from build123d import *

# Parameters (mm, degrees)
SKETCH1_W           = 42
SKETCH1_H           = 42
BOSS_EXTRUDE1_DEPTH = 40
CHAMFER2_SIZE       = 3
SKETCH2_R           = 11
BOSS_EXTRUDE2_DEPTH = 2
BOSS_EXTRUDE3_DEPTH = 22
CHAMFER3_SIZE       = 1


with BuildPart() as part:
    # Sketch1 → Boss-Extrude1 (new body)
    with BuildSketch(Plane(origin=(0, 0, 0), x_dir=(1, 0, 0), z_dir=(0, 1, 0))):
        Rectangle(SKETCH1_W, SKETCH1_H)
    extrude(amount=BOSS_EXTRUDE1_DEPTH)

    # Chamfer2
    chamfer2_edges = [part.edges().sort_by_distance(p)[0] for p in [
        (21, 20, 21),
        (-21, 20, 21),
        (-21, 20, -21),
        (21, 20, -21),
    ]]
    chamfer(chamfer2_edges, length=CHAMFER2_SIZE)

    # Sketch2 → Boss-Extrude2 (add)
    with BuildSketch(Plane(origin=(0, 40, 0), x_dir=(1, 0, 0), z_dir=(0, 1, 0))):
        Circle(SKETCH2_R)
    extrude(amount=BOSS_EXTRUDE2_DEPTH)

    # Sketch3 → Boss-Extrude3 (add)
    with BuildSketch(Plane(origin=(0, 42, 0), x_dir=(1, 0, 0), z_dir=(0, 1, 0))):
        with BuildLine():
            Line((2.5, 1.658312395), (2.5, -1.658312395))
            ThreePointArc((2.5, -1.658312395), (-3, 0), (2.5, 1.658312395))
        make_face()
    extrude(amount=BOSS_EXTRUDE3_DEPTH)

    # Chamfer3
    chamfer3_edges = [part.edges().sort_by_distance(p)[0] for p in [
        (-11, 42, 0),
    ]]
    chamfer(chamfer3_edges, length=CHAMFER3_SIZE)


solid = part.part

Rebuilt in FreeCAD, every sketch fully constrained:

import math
import FreeCAD as App
import Part
import Sketcher
Q = App.Units.Quantity


def edges_at(feature, points):
    """Names of the edges that pass closest to the given points."""
    edges = feature.Shape.Edges
    near = lambda p: min(range(len(edges)), key=lambda i: edges[i].distToShape(Part.Vertex(*p))[0])
    return sorted({f"Edge{near(p) + 1}" for p in points})


def add_polygon(sketch, points):
    """Adds a closed chain of lines whose ends are joined by coincident constraints."""
    first, n = sketch.GeometryCount, len(points)
    for a, b in zip(points, points[1:] + points[:1]):
        sketch.addGeometry(Part.LineSegment(App.Vector(*a, 0), App.Vector(*b, 0)), False)
    for i in range(n):
        sketch.addConstraint(Sketcher.Constraint("Coincident", first + i, 2, first + (i + 1) % n, 1))

doc = App.newDocument("Part")
body = doc.addObject("PartDesign::Body", "Body")

# Sketch on XZ plane
sketch1 = body.newObject("Sketcher::SketchObject", "Sketch")
sketch1.AttachmentSupport = (doc.getObject("XZ_Plane"), [""])
sketch1.MapMode = "FlatFace"
add_polygon(sketch1, [(-21, -21), (-21, 21), (21, 21), (21, -21)])  # lines 0-3
sketch1.addConstraint([
    Sketcher.Constraint("Vertical", 0),
    Sketcher.Constraint("Horizontal", 1),
    Sketcher.Constraint("Vertical", 2),
    Sketcher.Constraint("Horizontal", 3),
    Sketcher.Constraint("Symmetric", 0, 2, 2, 2, -1, 1),
    Sketcher.Constraint("Equal", 3, 0),
    Sketcher.Constraint("DistanceX", 1, 1, 1, 2, Q("42 mm")),
])
pad1 = body.newObject("PartDesign::Pad", "Pad")
pad1.Profile = sketch1
pad1.Length = 40
pad1.Reversed = True
doc.recompute()

chamfer = body.newObject("PartDesign::Chamfer", "Chamfer")
chamfer.Base = (pad1, edges_at(pad1, [
    (21, 20, 21),
    (-21, 20, 21),
    (-21, 20, -21),
    (21, 20, -21),
]))
chamfer.Size = 3

# Sketch on XZ plane
sketch2 = body.newObject("Sketcher::SketchObject", "Sketch001")
sketch2.AttachmentSupport = (doc.getObject("XZ_Plane"), [""])
sketch2.MapMode = "FlatFace"
sketch2.AttachmentOffset = App.Placement(App.Vector(0, 0, -40), App.Rotation())
sketch2.addGeometry(Part.Circle(App.Vector(0, 0, 0), App.Vector(0, 0, 1), 11), False)
sketch2.addConstraint([
    Sketcher.Constraint("Coincident", 0, 3, -1, 1),
    Sketcher.Constraint("Diameter", 0, Q("22 mm")),
])
pad2 = body.newObject("PartDesign::Pad", "Pad001")
pad2.Profile = sketch2
pad2.Length = 2
pad2.Reversed = True

# Sketch on XZ plane
sketch3 = body.newObject("Sketcher::SketchObject", "Sketch002")
sketch3.AttachmentSupport = (doc.getObject("XZ_Plane"), [""])
sketch3.MapMode = "FlatFace"
sketch3.AttachmentOffset = App.Placement(App.Vector(0, 0, -42), App.Rotation())
sketch3.addGeometry([
    Part.LineSegment(App.Vector(2.5, 1.7, 0), App.Vector(2.5, -1.7, 0)),
    Part.ArcOfCircle(Part.Circle(App.Vector(0, 0, 0), App.Vector(0, 0, 1), 3), math.radians(34), math.radians(326)),
], False)
sketch3.addConstraint([
    Sketcher.Constraint("Coincident", 0, 1, 1, 1),
    Sketcher.Constraint("Coincident", 1, 2, 0, 2),
    Sketcher.Constraint("Vertical", 0),
    Sketcher.Constraint("Coincident", 1, 3, -1, 1),
    Sketcher.Constraint("Radius", 1, Q("3 mm")),
    Sketcher.Constraint("DistanceX", -1, 1, 0, 1, Q("2.5 mm")),
])
pad3 = body.newObject("PartDesign::Pad", "Pad002")
pad3.Profile = sketch3
pad3.Length = 22
pad3.Reversed = True
doc.recompute()

chamfer2 = body.newObject("PartDesign::Chamfer", "Chamfer001")
chamfer2.Base = (pad3, edges_at(pad3, [(-11, 42, 0)]))
chamfer2.Size = 1

doc.recompute()
